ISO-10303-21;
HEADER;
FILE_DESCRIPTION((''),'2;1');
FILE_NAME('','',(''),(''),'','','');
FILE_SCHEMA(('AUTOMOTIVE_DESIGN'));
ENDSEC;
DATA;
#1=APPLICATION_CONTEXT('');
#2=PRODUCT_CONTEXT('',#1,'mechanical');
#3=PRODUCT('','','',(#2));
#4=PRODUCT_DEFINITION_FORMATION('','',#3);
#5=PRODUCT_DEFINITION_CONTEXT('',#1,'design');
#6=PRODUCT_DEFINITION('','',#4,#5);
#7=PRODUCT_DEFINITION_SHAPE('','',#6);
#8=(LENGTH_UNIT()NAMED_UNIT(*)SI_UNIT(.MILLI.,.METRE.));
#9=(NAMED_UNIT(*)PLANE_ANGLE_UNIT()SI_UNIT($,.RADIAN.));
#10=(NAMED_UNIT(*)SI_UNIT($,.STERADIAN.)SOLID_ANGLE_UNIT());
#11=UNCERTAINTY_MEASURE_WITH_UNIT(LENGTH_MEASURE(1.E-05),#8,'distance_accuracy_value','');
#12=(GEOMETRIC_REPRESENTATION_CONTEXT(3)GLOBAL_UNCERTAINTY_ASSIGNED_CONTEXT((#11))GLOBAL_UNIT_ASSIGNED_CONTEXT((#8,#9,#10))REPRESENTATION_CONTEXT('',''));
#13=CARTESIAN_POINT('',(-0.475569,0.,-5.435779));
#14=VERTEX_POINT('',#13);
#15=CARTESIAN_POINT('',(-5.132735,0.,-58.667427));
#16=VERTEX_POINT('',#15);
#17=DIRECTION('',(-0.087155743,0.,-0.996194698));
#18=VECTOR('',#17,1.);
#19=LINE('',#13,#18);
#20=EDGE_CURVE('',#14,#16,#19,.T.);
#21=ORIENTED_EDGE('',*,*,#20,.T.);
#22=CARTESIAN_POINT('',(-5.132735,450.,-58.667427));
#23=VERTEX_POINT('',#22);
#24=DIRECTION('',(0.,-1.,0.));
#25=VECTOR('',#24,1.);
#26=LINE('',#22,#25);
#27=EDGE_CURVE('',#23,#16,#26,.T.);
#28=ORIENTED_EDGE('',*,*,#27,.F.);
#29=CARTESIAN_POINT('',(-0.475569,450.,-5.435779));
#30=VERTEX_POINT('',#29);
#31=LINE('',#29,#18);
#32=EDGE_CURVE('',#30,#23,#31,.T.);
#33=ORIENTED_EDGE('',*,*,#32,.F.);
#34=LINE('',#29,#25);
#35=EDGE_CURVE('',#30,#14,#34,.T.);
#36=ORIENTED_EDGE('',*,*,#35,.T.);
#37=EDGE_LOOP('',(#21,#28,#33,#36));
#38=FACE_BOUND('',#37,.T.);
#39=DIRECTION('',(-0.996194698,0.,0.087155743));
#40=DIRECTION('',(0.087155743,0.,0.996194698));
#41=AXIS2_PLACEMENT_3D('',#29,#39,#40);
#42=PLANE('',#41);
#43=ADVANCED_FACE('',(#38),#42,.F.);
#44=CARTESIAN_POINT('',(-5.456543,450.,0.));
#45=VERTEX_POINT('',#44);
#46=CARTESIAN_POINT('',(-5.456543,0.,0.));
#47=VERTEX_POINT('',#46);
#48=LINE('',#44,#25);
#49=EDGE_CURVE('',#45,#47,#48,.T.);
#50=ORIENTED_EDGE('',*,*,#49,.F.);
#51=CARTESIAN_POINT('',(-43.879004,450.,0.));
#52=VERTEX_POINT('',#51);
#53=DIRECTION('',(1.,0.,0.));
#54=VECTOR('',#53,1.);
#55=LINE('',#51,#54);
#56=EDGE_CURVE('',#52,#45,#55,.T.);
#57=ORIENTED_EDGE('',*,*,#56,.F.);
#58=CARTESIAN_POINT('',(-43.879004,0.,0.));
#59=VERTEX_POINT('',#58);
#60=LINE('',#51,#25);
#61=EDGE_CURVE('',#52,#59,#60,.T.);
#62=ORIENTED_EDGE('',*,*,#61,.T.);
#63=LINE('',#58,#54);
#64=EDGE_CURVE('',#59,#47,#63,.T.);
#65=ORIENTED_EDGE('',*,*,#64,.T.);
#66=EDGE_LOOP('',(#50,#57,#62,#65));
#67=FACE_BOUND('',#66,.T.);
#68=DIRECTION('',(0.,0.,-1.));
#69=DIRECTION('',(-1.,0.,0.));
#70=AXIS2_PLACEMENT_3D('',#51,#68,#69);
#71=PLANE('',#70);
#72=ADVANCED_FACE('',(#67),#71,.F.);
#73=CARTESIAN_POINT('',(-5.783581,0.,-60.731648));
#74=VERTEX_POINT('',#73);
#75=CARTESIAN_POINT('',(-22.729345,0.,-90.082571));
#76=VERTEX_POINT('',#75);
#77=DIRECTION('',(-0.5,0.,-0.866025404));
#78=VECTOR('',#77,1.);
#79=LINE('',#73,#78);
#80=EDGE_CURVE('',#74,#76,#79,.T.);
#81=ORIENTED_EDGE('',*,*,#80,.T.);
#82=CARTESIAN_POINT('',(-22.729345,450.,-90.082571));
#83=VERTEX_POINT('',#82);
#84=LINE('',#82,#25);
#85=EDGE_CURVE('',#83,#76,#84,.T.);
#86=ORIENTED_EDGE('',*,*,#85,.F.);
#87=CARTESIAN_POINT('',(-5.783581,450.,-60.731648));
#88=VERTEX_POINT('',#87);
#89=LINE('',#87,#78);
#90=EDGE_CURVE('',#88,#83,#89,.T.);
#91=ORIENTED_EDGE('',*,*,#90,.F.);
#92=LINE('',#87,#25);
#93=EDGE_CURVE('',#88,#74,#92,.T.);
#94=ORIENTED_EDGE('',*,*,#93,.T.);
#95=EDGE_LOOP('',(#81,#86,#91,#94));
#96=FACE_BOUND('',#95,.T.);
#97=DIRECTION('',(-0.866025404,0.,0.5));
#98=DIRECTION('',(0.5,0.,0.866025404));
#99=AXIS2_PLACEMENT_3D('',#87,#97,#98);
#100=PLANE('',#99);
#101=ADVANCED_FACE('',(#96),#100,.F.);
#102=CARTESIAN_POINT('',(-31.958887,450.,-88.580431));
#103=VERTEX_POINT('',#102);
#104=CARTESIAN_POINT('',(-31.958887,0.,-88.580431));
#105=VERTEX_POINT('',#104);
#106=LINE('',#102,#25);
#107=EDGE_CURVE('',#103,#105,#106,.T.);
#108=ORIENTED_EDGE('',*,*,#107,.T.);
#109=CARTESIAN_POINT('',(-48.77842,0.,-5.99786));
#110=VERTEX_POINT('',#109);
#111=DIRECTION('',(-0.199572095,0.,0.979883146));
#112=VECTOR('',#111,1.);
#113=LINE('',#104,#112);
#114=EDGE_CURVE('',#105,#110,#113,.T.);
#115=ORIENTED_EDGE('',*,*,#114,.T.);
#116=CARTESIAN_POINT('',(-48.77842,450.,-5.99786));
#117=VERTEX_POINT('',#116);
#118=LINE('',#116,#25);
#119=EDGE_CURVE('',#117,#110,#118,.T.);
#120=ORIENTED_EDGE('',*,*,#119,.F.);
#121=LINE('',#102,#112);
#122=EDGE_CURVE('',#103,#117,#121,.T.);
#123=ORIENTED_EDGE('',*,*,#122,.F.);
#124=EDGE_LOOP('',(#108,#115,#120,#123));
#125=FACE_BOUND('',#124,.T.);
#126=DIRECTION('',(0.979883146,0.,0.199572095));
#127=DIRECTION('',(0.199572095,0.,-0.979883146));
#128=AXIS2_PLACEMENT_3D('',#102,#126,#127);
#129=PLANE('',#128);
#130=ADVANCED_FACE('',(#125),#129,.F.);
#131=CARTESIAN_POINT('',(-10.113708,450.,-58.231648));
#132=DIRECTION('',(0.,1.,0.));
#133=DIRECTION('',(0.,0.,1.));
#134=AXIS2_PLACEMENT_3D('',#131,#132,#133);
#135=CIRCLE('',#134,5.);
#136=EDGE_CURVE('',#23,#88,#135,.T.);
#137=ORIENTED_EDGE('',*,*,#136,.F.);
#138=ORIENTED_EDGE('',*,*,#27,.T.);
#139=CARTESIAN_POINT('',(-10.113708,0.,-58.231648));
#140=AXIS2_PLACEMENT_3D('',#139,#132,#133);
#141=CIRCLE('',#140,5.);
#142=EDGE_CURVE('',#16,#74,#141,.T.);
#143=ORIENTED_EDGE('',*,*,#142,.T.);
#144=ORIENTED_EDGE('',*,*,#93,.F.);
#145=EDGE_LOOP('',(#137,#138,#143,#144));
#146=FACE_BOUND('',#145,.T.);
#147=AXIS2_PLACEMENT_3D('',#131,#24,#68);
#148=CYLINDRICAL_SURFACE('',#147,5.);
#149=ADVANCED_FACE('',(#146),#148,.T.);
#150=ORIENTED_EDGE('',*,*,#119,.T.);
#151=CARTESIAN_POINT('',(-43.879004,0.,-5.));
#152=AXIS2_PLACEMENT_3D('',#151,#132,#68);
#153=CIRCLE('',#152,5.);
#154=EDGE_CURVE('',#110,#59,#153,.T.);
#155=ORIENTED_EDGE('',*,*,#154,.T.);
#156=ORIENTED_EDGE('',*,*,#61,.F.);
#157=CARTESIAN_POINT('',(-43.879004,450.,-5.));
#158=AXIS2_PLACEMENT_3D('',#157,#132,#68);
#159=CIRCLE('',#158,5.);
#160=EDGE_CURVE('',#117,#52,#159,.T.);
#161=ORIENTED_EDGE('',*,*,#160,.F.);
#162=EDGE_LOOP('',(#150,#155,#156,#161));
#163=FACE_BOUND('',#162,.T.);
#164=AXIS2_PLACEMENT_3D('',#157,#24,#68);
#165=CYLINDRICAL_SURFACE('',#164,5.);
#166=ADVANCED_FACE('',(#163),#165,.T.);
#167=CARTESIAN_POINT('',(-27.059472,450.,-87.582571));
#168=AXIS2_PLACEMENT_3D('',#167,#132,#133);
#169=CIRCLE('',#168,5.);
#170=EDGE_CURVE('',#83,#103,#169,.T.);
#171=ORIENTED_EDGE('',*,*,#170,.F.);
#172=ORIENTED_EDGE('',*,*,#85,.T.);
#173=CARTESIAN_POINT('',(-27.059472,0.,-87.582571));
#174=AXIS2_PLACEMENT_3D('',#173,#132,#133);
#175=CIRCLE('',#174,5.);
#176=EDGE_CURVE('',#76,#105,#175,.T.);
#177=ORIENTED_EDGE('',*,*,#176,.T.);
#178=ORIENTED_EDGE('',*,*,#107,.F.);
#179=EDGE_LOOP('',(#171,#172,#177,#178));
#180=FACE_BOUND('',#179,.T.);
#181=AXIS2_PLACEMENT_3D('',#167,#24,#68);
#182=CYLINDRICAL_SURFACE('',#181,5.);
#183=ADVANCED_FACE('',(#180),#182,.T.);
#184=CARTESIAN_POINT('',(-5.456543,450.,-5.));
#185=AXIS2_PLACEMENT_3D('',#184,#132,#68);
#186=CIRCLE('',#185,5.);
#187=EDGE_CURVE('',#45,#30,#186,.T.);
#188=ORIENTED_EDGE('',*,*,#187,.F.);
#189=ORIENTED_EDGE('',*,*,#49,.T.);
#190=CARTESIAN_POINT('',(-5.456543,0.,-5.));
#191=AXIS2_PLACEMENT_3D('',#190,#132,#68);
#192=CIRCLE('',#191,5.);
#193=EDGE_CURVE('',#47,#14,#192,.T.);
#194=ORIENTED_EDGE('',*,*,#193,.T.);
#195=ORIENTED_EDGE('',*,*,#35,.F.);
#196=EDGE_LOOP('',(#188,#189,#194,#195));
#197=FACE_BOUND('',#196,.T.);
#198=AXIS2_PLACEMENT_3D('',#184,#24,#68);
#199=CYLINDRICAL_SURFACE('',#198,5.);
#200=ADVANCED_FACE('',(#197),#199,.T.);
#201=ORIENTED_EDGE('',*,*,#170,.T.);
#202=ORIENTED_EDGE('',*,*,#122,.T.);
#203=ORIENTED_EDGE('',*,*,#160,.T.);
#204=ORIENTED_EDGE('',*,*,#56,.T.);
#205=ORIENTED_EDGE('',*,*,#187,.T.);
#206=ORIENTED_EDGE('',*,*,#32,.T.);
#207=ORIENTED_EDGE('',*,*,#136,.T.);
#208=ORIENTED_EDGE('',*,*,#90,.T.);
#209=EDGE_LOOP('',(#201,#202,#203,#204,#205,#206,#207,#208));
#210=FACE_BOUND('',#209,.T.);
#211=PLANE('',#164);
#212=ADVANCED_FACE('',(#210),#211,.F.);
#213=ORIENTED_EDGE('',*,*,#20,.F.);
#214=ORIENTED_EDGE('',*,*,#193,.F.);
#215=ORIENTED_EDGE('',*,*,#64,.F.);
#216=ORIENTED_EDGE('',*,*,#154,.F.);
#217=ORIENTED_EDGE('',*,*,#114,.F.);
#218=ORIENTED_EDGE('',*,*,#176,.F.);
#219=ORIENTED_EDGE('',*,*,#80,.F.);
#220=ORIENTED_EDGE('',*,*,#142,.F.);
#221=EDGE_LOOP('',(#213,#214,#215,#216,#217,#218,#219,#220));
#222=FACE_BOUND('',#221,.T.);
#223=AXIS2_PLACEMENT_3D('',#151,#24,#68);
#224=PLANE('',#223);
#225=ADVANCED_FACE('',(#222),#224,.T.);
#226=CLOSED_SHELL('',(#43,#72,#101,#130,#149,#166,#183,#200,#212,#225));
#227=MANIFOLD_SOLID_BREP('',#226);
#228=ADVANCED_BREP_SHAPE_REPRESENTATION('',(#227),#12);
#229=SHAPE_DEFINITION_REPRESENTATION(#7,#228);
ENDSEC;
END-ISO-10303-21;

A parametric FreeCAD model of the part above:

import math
import FreeCAD as App
import Part
import Sketcher
from FreeCAD import Vector
Q = App.Units.Quantity

doc = App.newDocument("Part")
body = doc.addObject("PartDesign::Body", "Body")

# Sketch on XZ plane
sketch1 = body.newObject("Sketcher::SketchObject", "Sketch")
sketch1.AttachmentSupport = (doc.getObject("XZ_Plane"), [""])
sketch1.MapMode = "FlatFace"
sketch1.addGeometry([
    Part.LineSegment(Vector(-43.9, 0, 0), Vector(-5.5, 0, 0)),  # 0
    Part.ArcOfCircle(Part.Circle(Vector(-5.5, -5, 0), Vector(0, 0, 1), 5), math.radians(-5), math.radians(90)),  # 1
    Part.LineSegment(Vector(-0.5, -5.4, 0), Vector(-5.1, -58.7, 0)),  # 2
    Part.ArcOfCircle(Part.Circle(Vector(-10.1, -58.2, 0), Vector(0, 0, 1), 5), math.radians(-30), math.radians(-5)),  # 3
    Part.LineSegment(Vector(-5.8, -60.7, 0), Vector(-22.7, -90.1, 0)),  # 4
    Part.ArcOfCircle(Part.Circle(Vector(-27.1, -87.6, 0), Vector(0, 0, 1), 5), math.radians(-168), math.radians(-30)),  # 5
    Part.LineSegment(Vector(-32, -88.6, 0), Vector(-48.8, -6, 0)),  # 6
    Part.ArcOfCircle(Part.Circle(Vector(-43.9, -5, 0), Vector(0, 0, 1), 5), math.radians(90), math.radians(192)),  # 7
], False)
sketch1.addConstraint([
    Sketcher.Constraint("Tangent", 0, 2, 1, 2),
    Sketcher.Constraint("Tangent", 1, 1, 2, 1),
    Sketcher.Constraint("Tangent", 2, 2, 3, 2),
    Sketcher.Constraint("Tangent", 3, 1, 4, 1),
    Sketcher.Constraint("Tangent", 4, 2, 5, 2),
    Sketcher.Constraint("Tangent", 5, 1, 6, 1),
    Sketcher.Constraint("Tangent", 6, 2, 7, 2),
    Sketcher.Constraint("Tangent", 7, 1, 0, 1),
    Sketcher.Constraint("Horizontal", 0),
    Sketcher.Constraint("Equal", 1, 3),
    Sketcher.Constraint("Equal", 3, 5),
    Sketcher.Constraint("Equal", 5, 7),
    Sketcher.Constraint("PointOnObject", 0, 2, -1),
    Sketcher.Constraint("Radius", 1, Q("5 mm")),
    Sketcher.Constraint("Angle", 2, Q("-95 deg")),
    Sketcher.Constraint("Angle", 4, Q("-120 deg")),
    Sketcher.Constraint("DistanceX", 0, 1, 0, 2, Q("38.422462 mm")),
    Sketcher.Constraint("Distance", 6, Q("84.277979 mm")),
    Sketcher.Constraint("DistanceX", 3, 3, -1, 1, Q("10.113708 mm")),
    Sketcher.Constraint("DistanceX", 5, 3, -1, 1, Q("27.059472 mm")),
])
pad1 = body.newObject("PartDesign::Pad", "Pad")
pad1.Profile = sketch1
pad1.Length = 450
pad1.Reversed = True

doc.recompute()
